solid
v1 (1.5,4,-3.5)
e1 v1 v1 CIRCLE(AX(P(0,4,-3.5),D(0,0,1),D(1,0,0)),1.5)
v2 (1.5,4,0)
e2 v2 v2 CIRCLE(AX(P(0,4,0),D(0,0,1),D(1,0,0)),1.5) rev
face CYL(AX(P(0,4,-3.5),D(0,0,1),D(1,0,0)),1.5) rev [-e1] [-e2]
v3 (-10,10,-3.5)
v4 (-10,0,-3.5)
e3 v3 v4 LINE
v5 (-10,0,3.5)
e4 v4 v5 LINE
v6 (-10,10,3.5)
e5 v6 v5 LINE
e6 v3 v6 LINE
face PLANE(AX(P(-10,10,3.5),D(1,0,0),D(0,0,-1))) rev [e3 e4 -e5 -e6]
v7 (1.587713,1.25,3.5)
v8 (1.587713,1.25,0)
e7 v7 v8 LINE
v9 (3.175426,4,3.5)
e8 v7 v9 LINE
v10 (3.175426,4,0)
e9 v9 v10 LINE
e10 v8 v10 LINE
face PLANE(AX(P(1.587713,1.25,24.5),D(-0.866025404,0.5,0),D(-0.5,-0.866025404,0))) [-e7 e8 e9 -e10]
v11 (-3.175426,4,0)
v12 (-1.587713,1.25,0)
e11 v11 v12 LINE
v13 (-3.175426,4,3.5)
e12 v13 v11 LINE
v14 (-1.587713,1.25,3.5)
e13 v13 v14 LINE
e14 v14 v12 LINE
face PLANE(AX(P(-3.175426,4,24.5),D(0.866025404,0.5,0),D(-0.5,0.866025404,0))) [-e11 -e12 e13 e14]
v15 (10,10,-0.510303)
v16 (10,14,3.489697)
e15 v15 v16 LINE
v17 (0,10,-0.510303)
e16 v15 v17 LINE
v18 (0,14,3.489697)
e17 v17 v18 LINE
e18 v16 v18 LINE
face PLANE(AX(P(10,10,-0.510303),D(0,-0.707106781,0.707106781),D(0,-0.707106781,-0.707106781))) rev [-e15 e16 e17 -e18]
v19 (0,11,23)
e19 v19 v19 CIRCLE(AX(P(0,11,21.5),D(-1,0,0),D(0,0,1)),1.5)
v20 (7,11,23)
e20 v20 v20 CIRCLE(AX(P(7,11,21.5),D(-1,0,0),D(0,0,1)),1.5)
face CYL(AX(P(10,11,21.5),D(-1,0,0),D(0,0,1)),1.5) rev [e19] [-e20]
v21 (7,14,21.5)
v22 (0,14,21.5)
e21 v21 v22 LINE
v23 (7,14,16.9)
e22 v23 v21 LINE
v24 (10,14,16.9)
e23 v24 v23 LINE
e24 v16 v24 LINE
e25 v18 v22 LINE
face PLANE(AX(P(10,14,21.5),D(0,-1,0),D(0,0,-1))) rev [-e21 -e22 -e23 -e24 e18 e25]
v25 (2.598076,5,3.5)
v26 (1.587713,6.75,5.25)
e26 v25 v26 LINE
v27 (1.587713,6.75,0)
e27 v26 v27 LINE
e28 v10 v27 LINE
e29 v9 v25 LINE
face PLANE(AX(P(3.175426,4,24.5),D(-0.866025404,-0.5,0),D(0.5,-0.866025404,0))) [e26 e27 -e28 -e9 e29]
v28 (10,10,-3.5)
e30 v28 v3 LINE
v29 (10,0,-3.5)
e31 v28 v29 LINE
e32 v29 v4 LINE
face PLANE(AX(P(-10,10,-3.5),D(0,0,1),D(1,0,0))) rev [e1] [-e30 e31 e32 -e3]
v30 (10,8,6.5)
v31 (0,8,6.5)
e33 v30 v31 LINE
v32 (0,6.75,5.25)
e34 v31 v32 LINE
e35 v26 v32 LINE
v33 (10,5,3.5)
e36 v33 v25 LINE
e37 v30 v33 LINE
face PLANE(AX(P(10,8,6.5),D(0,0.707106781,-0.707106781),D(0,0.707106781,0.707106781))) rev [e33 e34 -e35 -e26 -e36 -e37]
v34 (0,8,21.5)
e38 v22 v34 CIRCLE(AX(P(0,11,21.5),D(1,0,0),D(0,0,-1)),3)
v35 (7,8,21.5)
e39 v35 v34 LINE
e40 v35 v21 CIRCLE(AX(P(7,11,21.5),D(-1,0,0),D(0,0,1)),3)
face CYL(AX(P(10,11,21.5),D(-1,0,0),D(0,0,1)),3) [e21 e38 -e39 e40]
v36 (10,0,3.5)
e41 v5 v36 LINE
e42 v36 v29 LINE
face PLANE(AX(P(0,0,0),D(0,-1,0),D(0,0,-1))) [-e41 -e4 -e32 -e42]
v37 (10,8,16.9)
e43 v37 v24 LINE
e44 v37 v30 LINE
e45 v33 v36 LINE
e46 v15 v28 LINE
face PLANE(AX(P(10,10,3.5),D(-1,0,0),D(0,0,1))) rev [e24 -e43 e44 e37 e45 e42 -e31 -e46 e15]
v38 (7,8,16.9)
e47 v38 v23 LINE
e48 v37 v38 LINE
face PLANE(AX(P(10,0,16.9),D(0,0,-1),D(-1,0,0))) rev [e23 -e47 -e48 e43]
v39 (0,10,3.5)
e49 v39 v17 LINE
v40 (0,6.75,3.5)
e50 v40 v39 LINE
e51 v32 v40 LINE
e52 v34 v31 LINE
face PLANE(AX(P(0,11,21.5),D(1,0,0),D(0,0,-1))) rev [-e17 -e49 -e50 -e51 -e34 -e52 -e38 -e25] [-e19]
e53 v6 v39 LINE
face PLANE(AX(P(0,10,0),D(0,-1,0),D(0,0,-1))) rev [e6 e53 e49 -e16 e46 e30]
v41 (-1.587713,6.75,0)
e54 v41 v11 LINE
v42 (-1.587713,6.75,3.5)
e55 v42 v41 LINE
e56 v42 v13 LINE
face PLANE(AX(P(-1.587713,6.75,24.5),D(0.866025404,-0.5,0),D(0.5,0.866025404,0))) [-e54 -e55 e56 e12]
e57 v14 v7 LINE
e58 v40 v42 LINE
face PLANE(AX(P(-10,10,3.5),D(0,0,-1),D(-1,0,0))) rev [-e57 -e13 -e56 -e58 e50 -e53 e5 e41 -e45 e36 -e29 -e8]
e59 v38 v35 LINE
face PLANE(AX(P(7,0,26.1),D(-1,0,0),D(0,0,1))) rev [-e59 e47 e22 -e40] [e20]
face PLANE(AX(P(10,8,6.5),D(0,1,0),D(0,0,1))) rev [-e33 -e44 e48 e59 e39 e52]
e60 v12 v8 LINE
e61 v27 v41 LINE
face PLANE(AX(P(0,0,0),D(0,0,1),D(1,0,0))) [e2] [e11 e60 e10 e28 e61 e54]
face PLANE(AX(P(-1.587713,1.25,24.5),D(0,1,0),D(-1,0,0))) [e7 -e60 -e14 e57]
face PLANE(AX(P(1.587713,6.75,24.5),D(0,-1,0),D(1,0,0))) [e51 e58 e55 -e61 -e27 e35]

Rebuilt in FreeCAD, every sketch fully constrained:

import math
import FreeCAD as App
import Part
import Sketcher

V = App.Vector
Q = App.Units.Quantity


def add_polygon(sketch, points):
    """Adds a closed chain of lines whose ends are joined by coincident constraints."""
    first, n = sketch.GeometryCount, len(points)
    for a, b in zip(points, points[1:] + points[:1]):
        sketch.addGeometry(Part.LineSegment(App.Vector(*a, 0), App.Vector(*b, 0)), False)
    for i in range(n):
        sketch.addConstraint(Sketcher.Constraint("Coincident", first + i, 2, first + (i + 1) % n, 1))

doc = App.newDocument("Part")
body = doc.addObject("PartDesign::Body", "Body")

# Sketch on XZ plane
sketch1 = body.newObject("Sketcher::SketchObject", "Sketch")
sketch1.AttachmentSupport = (doc.getObject("XZ_Plane"), [""])
sketch1.MapMode = "FlatFace"
add_polygon(sketch1, [(-10, -3.5), (-10, 3.5), (10, 3.5), (10, -3.5)])  # lines 0-3
sketch1.addConstraint([
    Sketcher.Constraint("Vertical", 0),
    Sketcher.Constraint("Horizontal", 1),
    Sketcher.Constraint("Vertical", 2),
    Sketcher.Constraint("Horizontal", 3),
    Sketcher.Constraint("Symmetric", 0, 2, 2, 2, -1, 1),
    Sketcher.Constraint("DistanceX", 1, 1, 1, 2, Q("20 mm")),
    Sketcher.Constraint("DistanceY", 0, 1, 0, 2, Q("7 mm")),
])
pad1 = body.newObject("PartDesign::Pad", "Pad")
pad1.Profile = sketch1
pad1.Length = 10
pad1.Reversed = True

# Sketch on YZ plane
sketch2 = body.newObject("Sketcher::SketchObject", "Sketch001")
sketch2.AttachmentSupport = (doc.getObject("YZ_Plane"), [""])
sketch2.MapMode = "FlatFace"
sketch2.addGeometry([
    Part.LineSegment(V(5, 3.5, 0), V(10, 3.5, 0)),  # 0
    Part.LineSegment(V(10, 3.5, 0), V(10, -0.510303, 0)),  # 1
    Part.LineSegment(V(10, -0.510303, 0), V(14, 3.489697, 0)),  # 2
    Part.LineSegment(V(14, 3.489697, 0), V(14, 21.5, 0)),  # 3
    Part.ArcOfCircle(Part.Circle(V(11, 21.5, 0), V(0, 0, 1), 3), math.radians(0), math.radians(180)),  # 4
    Part.LineSegment(V(8, 21.5, 0), V(8, 6.5, 0)),  # 5
    Part.LineSegment(V(8, 6.5, 0), V(5, 3.5, 0)),  # 6
], False)
sketch2.addConstraint([
    Sketcher.Constraint("Coincident", 0, 2, 1, 1),
    Sketcher.Constraint("Coincident", 1, 2, 2, 1),
    Sketcher.Constraint("Coincident", 2, 2, 3, 1),
    Sketcher.Constraint("Tangent", 3, 2, 4, 1),
    Sketcher.Constraint("Tangent", 4, 2, 5, 1),
    Sketcher.Constraint("Coincident", 5, 2, 6, 1),
    Sketcher.Constraint("Coincident", 6, 2, 0, 1),
    Sketcher.Constraint("Horizontal", 0),
    Sketcher.Constraint("Vertical", 1),
    Sketcher.Constraint("Vertical", 3),
    Sketcher.Constraint("Vertical", 5),
    Sketcher.Constraint("Parallel", 2, 6),
    Sketcher.Constraint("Radius", 4, Q("3 mm")),
    Sketcher.Constraint("DistanceX", 0, 1, 0, 2, Q("5 mm")),
    Sketcher.Constraint("DistanceY", 5, 2, 5, 1, Q("15 mm")),
    Sketcher.Constraint("Angle", 2, Q("45 deg")),
    Sketcher.Constraint("DistanceX", -1, 1, 4, 3, Q("11 mm")),
    Sketcher.Constraint("DistanceX", -1, 1, 0, 2, Q("10 mm")),
    Sketcher.Constraint("DistanceY", -1, 1, 4, 3, Q("21.5 mm")),
    Sketcher.Constraint("DistanceY", 1, 2, 1, 1, Q("4.010303 mm")),
])
pad2 = body.newObject("PartDesign::Pad", "Pad001")
pad2.Profile = sketch2
pad2.Length = 10

# Sketch on XZ plane
sketch3 = body.newObject("Sketcher::SketchObject", "Sketch002")
sketch3.AttachmentSupport = (doc.getObject("XZ_Plane"), [""])
sketch3.MapMode = "FlatFace"
sketch3.AttachmentOffset = App.Placement(V(0, 0, -14), App.Rotation())
add_polygon(sketch3, [(7, 16.9), (7, 26.1), (10, 26.1), (10, 16.9)])  # lines 0-3
sketch3.addConstraint([
    Sketcher.Constraint("Vertical", 0),
    Sketcher.Constraint("Horizontal", 1),
    Sketcher.Constraint("Vertical", 2),
    Sketcher.Constraint("Horizontal", 3),
    Sketcher.Constraint("DistanceX", 1, 1, 1, 2, Q("3 mm")),
    Sketcher.Constraint("DistanceY", 0, 1, 0, 2, Q("9.2 mm")),
    Sketcher.Constraint("DistanceX", -1, 1, 0, 2, Q("7 mm")),
    Sketcher.Constraint("DistanceY", -1, 1, 0, 2, Q("26.1 mm")),
])
pocket1 = body.newObject("PartDesign::Pocket", "Pocket")
pocket1.Profile = sketch3
pocket1.Type = "ThroughAll"
pocket1.Reversed = True

# Sketch on YZ plane
sketch4 = body.newObject("Sketcher::SketchObject", "Sketch003")
sketch4.AttachmentSupport = (doc.getObject("YZ_Plane"), [""])
sketch4.MapMode = "FlatFace"
sketch4.addGeometry(Part.Circle(V(11, 21.5, 0), V(0, 0, 1), 1.5), False)
sketch4.addConstraint([
    Sketcher.Constraint("Diameter", 0, Q("3 mm")),
    Sketcher.Constraint("DistanceX", -1, 1, 0, 3, Q("11 mm")),
    Sketcher.Constraint("DistanceY", -1, 1, 0, 3, Q("21.5 mm")),
])
pocket2 = body.newObject("PartDesign::Pocket", "Pocket001")
pocket2.Profile = sketch4
pocket2.Type = "ThroughAll"
pocket2.Reversed = True

# Sketch on XY plane
sketch5 = body.newObject("Sketcher::SketchObject", "Sketch004")
sketch5.AttachmentSupport = (doc.getObject("XY_Plane"), [""])
sketch5.MapMode = "FlatFace"
sketch5.AttachmentOffset = App.Placement(V(0, 0, 3.5), App.Rotation())
sketch5.addGeometry(Part.Circle(V(0, 4, 0), V(0, 0, 1), 1.5), False)
sketch5.addConstraint([
    Sketcher.Constraint("PointOnObject", 0, 3, -2),
    Sketcher.Constraint("Diameter", 0, Q("3 mm")),
    Sketcher.Constraint("DistanceY", -1, 1, 0, 3, Q("4 mm")),
])
pocket3 = body.newObject("PartDesign::Pocket", "Pocket002")
pocket3.Profile = sketch5
pocket3.Type = "ThroughAll"
pocket3.Midplane = True

# Sketch on XY plane
sketch6 = body.newObject("Sketcher::SketchObject", "Sketch005")
sketch6.AttachmentSupport = (doc.getObject("XY_Plane"), [""])
sketch6.MapMode = "FlatFace"
sketch6.AttachmentOffset = App.Placement(V(0, 0, 3.5), App.Rotation())
add_polygon(sketch6, [(-1.587713, 6.75), (-3.175426, 4), (-1.587713, 1.25), (1.587713, 1.25), (3.175426, 4), (1.587713, 6.75)])  # lines 0-5
sketch6.addConstraint([
    Sketcher.Constraint("Horizontal", 2),
    Sketcher.Constraint("Horizontal", 5),
    Sketcher.Constraint("Symmetric", 0, 2, 3, 2, -2),
    Sketcher.Constraint("Parallel", 0, 3),
    Sketcher.Constraint("Parallel", 1, 4),
    Sketcher.Constraint("Vertical", 2, 2, 4, 2),
    Sketcher.Constraint("Vertical", 1, 2, 5, 2),
    Sketcher.Constraint("Angle", 0, Q("-120 deg")),
    Sketcher.Constraint("DistanceY", -1, 1, 0, 2, Q("4 mm")),
    Sketcher.Constraint("DistanceY", 2, 2, 4, 2, Q("5.5 mm")),
    Sketcher.Constraint("DistanceX", 2, 1, 2, 2, Q("3.175426 mm")),
])
pocket4 = body.newObject("PartDesign::Pocket", "Pocket003")
pocket4.Profile = sketch6
pocket4.Type = "TwoLengths"
pocket4.Length = 28.147744
pocket4.Length2 = 3.5
pocket4.Reversed = True

doc.recompute()
